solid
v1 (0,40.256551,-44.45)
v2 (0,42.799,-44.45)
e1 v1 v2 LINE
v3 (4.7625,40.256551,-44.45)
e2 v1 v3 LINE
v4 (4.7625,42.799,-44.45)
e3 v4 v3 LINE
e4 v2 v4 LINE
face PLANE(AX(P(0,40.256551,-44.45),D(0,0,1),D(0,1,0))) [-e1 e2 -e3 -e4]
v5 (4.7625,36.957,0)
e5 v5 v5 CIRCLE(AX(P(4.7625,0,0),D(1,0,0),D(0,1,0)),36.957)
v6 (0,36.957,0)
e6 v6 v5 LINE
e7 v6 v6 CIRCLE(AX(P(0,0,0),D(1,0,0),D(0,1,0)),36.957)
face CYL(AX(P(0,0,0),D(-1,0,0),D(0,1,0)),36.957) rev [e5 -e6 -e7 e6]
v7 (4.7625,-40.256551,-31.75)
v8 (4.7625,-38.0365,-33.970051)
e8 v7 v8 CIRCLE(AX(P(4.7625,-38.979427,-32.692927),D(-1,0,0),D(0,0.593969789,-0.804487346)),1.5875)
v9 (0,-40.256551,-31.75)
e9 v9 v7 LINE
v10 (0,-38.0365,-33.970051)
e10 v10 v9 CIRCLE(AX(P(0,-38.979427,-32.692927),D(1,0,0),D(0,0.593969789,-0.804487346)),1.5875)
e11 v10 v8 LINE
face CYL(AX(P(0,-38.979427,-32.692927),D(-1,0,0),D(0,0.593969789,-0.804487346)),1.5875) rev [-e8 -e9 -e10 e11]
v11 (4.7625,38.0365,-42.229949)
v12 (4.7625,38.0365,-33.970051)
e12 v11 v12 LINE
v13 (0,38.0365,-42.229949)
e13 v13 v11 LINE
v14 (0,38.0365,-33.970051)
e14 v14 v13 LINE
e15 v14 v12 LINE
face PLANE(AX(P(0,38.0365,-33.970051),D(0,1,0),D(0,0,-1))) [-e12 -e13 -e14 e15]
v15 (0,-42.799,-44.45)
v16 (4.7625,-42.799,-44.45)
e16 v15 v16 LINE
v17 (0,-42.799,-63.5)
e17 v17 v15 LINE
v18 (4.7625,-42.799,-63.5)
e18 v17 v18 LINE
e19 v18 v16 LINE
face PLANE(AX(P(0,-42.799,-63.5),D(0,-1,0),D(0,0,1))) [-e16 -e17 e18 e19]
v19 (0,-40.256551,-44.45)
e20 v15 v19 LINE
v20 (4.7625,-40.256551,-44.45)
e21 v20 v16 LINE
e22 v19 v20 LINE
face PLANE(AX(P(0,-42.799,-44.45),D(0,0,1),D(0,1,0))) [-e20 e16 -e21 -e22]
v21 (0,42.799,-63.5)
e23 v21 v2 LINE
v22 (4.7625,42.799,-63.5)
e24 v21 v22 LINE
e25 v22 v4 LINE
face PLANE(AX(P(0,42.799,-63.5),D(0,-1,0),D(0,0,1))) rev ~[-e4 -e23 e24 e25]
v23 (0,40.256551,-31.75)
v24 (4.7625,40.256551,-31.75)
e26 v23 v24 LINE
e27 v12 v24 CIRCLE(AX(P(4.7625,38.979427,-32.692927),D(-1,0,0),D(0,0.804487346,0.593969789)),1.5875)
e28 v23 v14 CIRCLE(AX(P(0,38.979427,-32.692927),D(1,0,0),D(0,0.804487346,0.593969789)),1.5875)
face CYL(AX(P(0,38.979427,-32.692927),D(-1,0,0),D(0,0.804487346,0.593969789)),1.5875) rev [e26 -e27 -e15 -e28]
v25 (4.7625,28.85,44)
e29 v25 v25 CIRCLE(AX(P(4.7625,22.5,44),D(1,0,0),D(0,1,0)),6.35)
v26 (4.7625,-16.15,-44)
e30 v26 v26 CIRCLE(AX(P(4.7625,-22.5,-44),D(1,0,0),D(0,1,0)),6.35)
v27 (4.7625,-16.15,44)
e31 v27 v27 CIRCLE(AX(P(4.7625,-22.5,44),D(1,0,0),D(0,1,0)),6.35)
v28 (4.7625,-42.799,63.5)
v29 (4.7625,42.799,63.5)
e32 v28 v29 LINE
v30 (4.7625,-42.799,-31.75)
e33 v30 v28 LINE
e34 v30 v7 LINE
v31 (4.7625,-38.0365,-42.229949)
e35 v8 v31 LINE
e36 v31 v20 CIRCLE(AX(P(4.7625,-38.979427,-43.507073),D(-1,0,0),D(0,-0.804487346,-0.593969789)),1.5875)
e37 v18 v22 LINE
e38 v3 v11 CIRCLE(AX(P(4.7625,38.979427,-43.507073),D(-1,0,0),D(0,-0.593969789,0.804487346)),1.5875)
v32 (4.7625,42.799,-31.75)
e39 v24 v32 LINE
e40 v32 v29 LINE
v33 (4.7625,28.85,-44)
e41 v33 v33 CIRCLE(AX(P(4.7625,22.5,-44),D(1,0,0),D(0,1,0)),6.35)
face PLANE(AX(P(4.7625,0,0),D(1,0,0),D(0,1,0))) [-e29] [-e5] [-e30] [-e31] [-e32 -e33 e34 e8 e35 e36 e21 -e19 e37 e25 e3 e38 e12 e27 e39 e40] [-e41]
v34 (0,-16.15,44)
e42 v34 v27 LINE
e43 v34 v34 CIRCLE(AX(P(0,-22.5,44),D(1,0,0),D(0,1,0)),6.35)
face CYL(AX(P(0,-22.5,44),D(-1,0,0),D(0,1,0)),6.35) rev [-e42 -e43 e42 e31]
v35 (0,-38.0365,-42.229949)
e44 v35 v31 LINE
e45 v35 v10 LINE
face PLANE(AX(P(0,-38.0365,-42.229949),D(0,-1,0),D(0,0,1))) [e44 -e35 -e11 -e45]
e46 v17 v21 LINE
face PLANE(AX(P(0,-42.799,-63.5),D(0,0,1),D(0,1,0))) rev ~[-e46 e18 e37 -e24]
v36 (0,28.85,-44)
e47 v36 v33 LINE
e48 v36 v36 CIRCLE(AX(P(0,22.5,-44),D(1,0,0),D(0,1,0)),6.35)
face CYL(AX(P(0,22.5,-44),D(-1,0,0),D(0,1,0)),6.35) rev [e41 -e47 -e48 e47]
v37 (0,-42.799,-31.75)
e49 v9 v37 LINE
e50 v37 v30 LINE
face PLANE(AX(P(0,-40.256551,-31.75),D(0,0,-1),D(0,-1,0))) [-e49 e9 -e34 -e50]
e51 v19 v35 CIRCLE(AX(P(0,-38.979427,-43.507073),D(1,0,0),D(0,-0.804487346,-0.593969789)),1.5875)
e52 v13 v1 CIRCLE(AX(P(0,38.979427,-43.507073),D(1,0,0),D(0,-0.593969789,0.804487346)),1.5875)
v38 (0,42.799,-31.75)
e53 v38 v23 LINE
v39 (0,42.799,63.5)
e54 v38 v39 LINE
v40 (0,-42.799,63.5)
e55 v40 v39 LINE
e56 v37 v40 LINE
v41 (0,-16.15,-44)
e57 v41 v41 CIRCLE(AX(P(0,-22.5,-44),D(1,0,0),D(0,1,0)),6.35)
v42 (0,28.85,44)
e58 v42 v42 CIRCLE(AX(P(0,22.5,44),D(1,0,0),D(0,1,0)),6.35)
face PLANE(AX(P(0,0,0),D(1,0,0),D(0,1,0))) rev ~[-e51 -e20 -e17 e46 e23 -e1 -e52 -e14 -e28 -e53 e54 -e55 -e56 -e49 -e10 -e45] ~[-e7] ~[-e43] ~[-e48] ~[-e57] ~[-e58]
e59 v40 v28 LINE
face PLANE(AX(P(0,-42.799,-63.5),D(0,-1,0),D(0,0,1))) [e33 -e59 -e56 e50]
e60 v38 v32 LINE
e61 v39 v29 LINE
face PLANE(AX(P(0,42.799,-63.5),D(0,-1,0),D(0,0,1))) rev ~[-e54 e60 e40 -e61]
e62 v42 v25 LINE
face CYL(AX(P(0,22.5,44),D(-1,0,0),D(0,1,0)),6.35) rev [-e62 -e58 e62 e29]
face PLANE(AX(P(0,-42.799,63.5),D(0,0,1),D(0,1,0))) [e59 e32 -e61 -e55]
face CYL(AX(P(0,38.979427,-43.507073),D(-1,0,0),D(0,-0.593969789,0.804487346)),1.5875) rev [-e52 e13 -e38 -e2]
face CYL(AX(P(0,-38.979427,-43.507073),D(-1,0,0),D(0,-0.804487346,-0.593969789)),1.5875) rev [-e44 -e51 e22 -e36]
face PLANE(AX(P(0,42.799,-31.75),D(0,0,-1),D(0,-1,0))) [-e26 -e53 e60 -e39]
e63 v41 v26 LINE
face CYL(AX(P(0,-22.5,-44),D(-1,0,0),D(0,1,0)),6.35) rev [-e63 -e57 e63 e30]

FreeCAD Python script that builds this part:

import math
import FreeCAD as App
import Part
import Sketcher
from FreeCAD import Vector
Q = App.Units.Quantity

doc = App.newDocument("Part")
body = doc.addObject("PartDesign::Body", "Body")

# Sketch on YZ plane
sketch1 = body.newObject("Sketcher::SketchObject", "Sketch")
sketch1.AttachmentSupport = (doc.getObject("YZ_Plane"), [""])
sketch1.MapMode = "FlatFace"
sketch1.addGeometry([
    Part.LineSegment(Vector(-43, 64, 0), Vector(-43, -64, 0)),  # 0
    Part.LineSegment(Vector(-43, -64, 0), Vector(43, -64, 0)),  # 1
    Part.LineSegment(Vector(43, -64, 0), Vector(43, 64, 0)),  # 2
    Part.LineSegment(Vector(43, 64, 0), Vector(-43, 64, 0)),  # 3
    Part.Circle(Vector(-22, -44, 0), Vector(0, 0, 1), 6),  # 4
    Part.Circle(Vector(22, -44, 0), Vector(0, 0, 1), 6),  # 5
    Part.Circle(Vector(0, 0, 0), Vector(0, 0, 1), 37),  # 6
    Part.Circle(Vector(-22, 44, 0), Vector(0, 0, 1), 6),  # 7
    Part.Circle(Vector(22, 44, 0), Vector(0, 0, 1), 6),  # 8
], False)
sketch1.addConstraint([
    Sketcher.Constraint("Coincident", 0, 2, 1, 1),
    Sketcher.Constraint("Coincident", 1, 2, 2, 1),
    Sketcher.Constraint("Coincident", 2, 2, 3, 1),
    Sketcher.Constraint("Coincident", 3, 2, 0, 1),
    Sketcher.Constraint("Vertical", 0),
    Sketcher.Constraint("Horizontal", 1),
    Sketcher.Constraint("Vertical", 2),
    Sketcher.Constraint("Horizontal", 3),
    Sketcher.Constraint("Coincident", 6, 3, -1, 1),
    Sketcher.Constraint("Equal", 4, 5),
    Sketcher.Constraint("Equal", 5, 7),
    Sketcher.Constraint("Equal", 7, 8),
    Sketcher.Constraint("Symmetric", 5, 3, 7, 3, -1, 1),
    Sketcher.Constraint("Symmetric", 4, 3, 8, 3, -1, 1),
    Sketcher.Constraint("Symmetric", 0, 2, 2, 2, -1, 1),
    Sketcher.Constraint("Symmetric", 4, 3, 5, 3, -2),
    Sketcher.Constraint("Diameter", 4, Q("0.5 in")),
    Sketcher.Constraint("Diameter", 6, Q("2.91 in")),
    Sketcher.Constraint("DistanceY", 0, 2, 0, 1, Q("5 in")),
    Sketcher.Constraint("DistanceX", 1, 1, 1, 2, Q("3.37 in")),
    Sketcher.Constraint("DistanceX", 4, 3, -1, 1, 22.5),
    Sketcher.Constraint("DistanceY", 4, 3, -1, 1, 44.0),
])
pad1 = body.newObject("PartDesign::Pad", "Pad")
pad1.Profile = sketch1
pad1.Length = Q("0.1875 in")

# Sketch on YZ plane
sketch2 = body.newObject("Sketcher::SketchObject", "Sketch001")
sketch2.AttachmentSupport = (doc.getObject("YZ_Plane"), [""])
sketch2.MapMode = "FlatFace"
sketch2.addGeometry([
    Part.LineSegment(Vector(-42.8, -31.8, 0), Vector(-42.8, -44.5, 0)),  # 0
    Part.LineSegment(Vector(-42.8, -44.5, 0), Vector(-40.3, -44.5, 0)),  # 1
    Part.ArcOfCircle(Part.Circle(Vector(-39, -43.5, 0), Vector(0, 0, 1), 1.6), math.radians(-144), math.radians(54)),  # 2
    Part.LineSegment(Vector(-38, -42.2, 0), Vector(-38, -34, 0)),  # 3
    Part.ArcOfCircle(Part.Circle(Vector(-39, -32.7, 0), Vector(0, 0, 1), 1.6), math.radians(-54), math.radians(144)),  # 4
    Part.LineSegment(Vector(-40.3, -31.8, 0), Vector(-42.8, -31.8, 0)),  # 5
    Part.LineSegment(Vector(42.8, -44.5, 0), Vector(42.8, -31.8, 0)),  # 6
    Part.LineSegment(Vector(42.8, -31.8, 0), Vector(40.3, -31.8, 0)),  # 7
    Part.ArcOfCircle(Part.Circle(Vector(39, -32.7, 0), Vector(0, 0, 1), 1.6), math.radians(36), math.radians(234)),  # 8
    Part.LineSegment(Vector(38, -34, 0), Vector(38, -42.2, 0)),  # 9
    Part.ArcOfCircle(Part.Circle(Vector(39, -43.5, 0), Vector(0, 0, 1), 1.6), math.radians(126), math.radians(324)),  # 10
    Part.LineSegment(Vector(40.3, -44.5, 0), Vector(42.8, -44.5, 0)),  # 11
], False)
sketch2.addConstraint([
    Sketcher.Constraint("Coincident", 0, 2, 1, 1),
    Sketcher.Constraint("Coincident", 1, 2, 2, 1),
    Sketcher.Constraint("Coincident", 2, 2, 3, 1),
    Sketcher.Constraint("Coincident", 3, 2, 4, 1),
    Sketcher.Constraint("Coincident", 4, 2, 5, 1),
    Sketcher.Constraint("Coincident", 5, 2, 0, 1),
    Sketcher.Constraint("Coincident", 6, 2, 7, 1),
    Sketcher.Constraint("Coincident", 7, 2, 8, 1),
    Sketcher.Constraint("Coincident", 8, 2, 9, 1),
    Sketcher.Constraint("Coincident", 9, 2, 10, 1),
    Sketcher.Constraint("Coincident", 10, 2, 11, 1),
    Sketcher.Constraint("Coincident", 11, 2, 6, 1),
    Sketcher.Constraint("Vertical", 0),
    Sketcher.Constraint("Horizontal", 1),
    Sketcher.Constraint("Vertical", 3),
    Sketcher.Constraint("Horizontal", 5),
    Sketcher.Constraint("Vertical", 6),
    Sketcher.Constraint("Horizontal", 7),
    Sketcher.Constraint("Vertical", 9),
    Sketcher.Constraint("Horizontal", 11),
    Sketcher.Constraint("Equal", 2, 4),
    Sketcher.Constraint("Equal", 4, 8),
    Sketcher.Constraint("Equal", 8, 10),
    Sketcher.Constraint("Symmetric", 4, 3, 8, 3, -2),
    Sketcher.Constraint("Symmetric", 2, 3, 10, 3, -2),
    Sketcher.Constraint("Symmetric", 5, 2, 6, 2, -2),
    Sketcher.Constraint("Horizontal", 3, 2, 8, 2),
    Sketcher.Constraint("Horizontal", 1, 2, 10, 2),
    Sketcher.Constraint("Vertical", 2, 3, 4, 3),
    Sketcher.Constraint("Vertical", 1, 2, 4, 2),
    Sketcher.Constraint("DistanceY", 0, 2, 0, 1, Q("0.5 in")),
    Sketcher.Constraint("Radius", 2, Q("0.0625 in")),
    Sketcher.Constraint("DistanceY", 0, 2, -1, 1, Q("1.75 in")),
    Sketcher.Constraint("DistanceX", 0, 2, -1, 1, Q("1.685 in")),
    Sketcher.Constraint("DistanceX", 0, 2, 2, 2, Q("0.1875 in")),
    Sketcher.Constraint("DistanceX", 1, 1, 1, 2, 2.542449),
    Sketcher.Constraint("DistanceY", 2, 2, 3, 2, 8.259898),
])
pocket1 = body.newObject("PartDesign::Pocket", "Pocket")
pocket1.Profile = sketch2
pocket1.Type = "ThroughAll"
pocket1.Reversed = True

doc.recompute()
